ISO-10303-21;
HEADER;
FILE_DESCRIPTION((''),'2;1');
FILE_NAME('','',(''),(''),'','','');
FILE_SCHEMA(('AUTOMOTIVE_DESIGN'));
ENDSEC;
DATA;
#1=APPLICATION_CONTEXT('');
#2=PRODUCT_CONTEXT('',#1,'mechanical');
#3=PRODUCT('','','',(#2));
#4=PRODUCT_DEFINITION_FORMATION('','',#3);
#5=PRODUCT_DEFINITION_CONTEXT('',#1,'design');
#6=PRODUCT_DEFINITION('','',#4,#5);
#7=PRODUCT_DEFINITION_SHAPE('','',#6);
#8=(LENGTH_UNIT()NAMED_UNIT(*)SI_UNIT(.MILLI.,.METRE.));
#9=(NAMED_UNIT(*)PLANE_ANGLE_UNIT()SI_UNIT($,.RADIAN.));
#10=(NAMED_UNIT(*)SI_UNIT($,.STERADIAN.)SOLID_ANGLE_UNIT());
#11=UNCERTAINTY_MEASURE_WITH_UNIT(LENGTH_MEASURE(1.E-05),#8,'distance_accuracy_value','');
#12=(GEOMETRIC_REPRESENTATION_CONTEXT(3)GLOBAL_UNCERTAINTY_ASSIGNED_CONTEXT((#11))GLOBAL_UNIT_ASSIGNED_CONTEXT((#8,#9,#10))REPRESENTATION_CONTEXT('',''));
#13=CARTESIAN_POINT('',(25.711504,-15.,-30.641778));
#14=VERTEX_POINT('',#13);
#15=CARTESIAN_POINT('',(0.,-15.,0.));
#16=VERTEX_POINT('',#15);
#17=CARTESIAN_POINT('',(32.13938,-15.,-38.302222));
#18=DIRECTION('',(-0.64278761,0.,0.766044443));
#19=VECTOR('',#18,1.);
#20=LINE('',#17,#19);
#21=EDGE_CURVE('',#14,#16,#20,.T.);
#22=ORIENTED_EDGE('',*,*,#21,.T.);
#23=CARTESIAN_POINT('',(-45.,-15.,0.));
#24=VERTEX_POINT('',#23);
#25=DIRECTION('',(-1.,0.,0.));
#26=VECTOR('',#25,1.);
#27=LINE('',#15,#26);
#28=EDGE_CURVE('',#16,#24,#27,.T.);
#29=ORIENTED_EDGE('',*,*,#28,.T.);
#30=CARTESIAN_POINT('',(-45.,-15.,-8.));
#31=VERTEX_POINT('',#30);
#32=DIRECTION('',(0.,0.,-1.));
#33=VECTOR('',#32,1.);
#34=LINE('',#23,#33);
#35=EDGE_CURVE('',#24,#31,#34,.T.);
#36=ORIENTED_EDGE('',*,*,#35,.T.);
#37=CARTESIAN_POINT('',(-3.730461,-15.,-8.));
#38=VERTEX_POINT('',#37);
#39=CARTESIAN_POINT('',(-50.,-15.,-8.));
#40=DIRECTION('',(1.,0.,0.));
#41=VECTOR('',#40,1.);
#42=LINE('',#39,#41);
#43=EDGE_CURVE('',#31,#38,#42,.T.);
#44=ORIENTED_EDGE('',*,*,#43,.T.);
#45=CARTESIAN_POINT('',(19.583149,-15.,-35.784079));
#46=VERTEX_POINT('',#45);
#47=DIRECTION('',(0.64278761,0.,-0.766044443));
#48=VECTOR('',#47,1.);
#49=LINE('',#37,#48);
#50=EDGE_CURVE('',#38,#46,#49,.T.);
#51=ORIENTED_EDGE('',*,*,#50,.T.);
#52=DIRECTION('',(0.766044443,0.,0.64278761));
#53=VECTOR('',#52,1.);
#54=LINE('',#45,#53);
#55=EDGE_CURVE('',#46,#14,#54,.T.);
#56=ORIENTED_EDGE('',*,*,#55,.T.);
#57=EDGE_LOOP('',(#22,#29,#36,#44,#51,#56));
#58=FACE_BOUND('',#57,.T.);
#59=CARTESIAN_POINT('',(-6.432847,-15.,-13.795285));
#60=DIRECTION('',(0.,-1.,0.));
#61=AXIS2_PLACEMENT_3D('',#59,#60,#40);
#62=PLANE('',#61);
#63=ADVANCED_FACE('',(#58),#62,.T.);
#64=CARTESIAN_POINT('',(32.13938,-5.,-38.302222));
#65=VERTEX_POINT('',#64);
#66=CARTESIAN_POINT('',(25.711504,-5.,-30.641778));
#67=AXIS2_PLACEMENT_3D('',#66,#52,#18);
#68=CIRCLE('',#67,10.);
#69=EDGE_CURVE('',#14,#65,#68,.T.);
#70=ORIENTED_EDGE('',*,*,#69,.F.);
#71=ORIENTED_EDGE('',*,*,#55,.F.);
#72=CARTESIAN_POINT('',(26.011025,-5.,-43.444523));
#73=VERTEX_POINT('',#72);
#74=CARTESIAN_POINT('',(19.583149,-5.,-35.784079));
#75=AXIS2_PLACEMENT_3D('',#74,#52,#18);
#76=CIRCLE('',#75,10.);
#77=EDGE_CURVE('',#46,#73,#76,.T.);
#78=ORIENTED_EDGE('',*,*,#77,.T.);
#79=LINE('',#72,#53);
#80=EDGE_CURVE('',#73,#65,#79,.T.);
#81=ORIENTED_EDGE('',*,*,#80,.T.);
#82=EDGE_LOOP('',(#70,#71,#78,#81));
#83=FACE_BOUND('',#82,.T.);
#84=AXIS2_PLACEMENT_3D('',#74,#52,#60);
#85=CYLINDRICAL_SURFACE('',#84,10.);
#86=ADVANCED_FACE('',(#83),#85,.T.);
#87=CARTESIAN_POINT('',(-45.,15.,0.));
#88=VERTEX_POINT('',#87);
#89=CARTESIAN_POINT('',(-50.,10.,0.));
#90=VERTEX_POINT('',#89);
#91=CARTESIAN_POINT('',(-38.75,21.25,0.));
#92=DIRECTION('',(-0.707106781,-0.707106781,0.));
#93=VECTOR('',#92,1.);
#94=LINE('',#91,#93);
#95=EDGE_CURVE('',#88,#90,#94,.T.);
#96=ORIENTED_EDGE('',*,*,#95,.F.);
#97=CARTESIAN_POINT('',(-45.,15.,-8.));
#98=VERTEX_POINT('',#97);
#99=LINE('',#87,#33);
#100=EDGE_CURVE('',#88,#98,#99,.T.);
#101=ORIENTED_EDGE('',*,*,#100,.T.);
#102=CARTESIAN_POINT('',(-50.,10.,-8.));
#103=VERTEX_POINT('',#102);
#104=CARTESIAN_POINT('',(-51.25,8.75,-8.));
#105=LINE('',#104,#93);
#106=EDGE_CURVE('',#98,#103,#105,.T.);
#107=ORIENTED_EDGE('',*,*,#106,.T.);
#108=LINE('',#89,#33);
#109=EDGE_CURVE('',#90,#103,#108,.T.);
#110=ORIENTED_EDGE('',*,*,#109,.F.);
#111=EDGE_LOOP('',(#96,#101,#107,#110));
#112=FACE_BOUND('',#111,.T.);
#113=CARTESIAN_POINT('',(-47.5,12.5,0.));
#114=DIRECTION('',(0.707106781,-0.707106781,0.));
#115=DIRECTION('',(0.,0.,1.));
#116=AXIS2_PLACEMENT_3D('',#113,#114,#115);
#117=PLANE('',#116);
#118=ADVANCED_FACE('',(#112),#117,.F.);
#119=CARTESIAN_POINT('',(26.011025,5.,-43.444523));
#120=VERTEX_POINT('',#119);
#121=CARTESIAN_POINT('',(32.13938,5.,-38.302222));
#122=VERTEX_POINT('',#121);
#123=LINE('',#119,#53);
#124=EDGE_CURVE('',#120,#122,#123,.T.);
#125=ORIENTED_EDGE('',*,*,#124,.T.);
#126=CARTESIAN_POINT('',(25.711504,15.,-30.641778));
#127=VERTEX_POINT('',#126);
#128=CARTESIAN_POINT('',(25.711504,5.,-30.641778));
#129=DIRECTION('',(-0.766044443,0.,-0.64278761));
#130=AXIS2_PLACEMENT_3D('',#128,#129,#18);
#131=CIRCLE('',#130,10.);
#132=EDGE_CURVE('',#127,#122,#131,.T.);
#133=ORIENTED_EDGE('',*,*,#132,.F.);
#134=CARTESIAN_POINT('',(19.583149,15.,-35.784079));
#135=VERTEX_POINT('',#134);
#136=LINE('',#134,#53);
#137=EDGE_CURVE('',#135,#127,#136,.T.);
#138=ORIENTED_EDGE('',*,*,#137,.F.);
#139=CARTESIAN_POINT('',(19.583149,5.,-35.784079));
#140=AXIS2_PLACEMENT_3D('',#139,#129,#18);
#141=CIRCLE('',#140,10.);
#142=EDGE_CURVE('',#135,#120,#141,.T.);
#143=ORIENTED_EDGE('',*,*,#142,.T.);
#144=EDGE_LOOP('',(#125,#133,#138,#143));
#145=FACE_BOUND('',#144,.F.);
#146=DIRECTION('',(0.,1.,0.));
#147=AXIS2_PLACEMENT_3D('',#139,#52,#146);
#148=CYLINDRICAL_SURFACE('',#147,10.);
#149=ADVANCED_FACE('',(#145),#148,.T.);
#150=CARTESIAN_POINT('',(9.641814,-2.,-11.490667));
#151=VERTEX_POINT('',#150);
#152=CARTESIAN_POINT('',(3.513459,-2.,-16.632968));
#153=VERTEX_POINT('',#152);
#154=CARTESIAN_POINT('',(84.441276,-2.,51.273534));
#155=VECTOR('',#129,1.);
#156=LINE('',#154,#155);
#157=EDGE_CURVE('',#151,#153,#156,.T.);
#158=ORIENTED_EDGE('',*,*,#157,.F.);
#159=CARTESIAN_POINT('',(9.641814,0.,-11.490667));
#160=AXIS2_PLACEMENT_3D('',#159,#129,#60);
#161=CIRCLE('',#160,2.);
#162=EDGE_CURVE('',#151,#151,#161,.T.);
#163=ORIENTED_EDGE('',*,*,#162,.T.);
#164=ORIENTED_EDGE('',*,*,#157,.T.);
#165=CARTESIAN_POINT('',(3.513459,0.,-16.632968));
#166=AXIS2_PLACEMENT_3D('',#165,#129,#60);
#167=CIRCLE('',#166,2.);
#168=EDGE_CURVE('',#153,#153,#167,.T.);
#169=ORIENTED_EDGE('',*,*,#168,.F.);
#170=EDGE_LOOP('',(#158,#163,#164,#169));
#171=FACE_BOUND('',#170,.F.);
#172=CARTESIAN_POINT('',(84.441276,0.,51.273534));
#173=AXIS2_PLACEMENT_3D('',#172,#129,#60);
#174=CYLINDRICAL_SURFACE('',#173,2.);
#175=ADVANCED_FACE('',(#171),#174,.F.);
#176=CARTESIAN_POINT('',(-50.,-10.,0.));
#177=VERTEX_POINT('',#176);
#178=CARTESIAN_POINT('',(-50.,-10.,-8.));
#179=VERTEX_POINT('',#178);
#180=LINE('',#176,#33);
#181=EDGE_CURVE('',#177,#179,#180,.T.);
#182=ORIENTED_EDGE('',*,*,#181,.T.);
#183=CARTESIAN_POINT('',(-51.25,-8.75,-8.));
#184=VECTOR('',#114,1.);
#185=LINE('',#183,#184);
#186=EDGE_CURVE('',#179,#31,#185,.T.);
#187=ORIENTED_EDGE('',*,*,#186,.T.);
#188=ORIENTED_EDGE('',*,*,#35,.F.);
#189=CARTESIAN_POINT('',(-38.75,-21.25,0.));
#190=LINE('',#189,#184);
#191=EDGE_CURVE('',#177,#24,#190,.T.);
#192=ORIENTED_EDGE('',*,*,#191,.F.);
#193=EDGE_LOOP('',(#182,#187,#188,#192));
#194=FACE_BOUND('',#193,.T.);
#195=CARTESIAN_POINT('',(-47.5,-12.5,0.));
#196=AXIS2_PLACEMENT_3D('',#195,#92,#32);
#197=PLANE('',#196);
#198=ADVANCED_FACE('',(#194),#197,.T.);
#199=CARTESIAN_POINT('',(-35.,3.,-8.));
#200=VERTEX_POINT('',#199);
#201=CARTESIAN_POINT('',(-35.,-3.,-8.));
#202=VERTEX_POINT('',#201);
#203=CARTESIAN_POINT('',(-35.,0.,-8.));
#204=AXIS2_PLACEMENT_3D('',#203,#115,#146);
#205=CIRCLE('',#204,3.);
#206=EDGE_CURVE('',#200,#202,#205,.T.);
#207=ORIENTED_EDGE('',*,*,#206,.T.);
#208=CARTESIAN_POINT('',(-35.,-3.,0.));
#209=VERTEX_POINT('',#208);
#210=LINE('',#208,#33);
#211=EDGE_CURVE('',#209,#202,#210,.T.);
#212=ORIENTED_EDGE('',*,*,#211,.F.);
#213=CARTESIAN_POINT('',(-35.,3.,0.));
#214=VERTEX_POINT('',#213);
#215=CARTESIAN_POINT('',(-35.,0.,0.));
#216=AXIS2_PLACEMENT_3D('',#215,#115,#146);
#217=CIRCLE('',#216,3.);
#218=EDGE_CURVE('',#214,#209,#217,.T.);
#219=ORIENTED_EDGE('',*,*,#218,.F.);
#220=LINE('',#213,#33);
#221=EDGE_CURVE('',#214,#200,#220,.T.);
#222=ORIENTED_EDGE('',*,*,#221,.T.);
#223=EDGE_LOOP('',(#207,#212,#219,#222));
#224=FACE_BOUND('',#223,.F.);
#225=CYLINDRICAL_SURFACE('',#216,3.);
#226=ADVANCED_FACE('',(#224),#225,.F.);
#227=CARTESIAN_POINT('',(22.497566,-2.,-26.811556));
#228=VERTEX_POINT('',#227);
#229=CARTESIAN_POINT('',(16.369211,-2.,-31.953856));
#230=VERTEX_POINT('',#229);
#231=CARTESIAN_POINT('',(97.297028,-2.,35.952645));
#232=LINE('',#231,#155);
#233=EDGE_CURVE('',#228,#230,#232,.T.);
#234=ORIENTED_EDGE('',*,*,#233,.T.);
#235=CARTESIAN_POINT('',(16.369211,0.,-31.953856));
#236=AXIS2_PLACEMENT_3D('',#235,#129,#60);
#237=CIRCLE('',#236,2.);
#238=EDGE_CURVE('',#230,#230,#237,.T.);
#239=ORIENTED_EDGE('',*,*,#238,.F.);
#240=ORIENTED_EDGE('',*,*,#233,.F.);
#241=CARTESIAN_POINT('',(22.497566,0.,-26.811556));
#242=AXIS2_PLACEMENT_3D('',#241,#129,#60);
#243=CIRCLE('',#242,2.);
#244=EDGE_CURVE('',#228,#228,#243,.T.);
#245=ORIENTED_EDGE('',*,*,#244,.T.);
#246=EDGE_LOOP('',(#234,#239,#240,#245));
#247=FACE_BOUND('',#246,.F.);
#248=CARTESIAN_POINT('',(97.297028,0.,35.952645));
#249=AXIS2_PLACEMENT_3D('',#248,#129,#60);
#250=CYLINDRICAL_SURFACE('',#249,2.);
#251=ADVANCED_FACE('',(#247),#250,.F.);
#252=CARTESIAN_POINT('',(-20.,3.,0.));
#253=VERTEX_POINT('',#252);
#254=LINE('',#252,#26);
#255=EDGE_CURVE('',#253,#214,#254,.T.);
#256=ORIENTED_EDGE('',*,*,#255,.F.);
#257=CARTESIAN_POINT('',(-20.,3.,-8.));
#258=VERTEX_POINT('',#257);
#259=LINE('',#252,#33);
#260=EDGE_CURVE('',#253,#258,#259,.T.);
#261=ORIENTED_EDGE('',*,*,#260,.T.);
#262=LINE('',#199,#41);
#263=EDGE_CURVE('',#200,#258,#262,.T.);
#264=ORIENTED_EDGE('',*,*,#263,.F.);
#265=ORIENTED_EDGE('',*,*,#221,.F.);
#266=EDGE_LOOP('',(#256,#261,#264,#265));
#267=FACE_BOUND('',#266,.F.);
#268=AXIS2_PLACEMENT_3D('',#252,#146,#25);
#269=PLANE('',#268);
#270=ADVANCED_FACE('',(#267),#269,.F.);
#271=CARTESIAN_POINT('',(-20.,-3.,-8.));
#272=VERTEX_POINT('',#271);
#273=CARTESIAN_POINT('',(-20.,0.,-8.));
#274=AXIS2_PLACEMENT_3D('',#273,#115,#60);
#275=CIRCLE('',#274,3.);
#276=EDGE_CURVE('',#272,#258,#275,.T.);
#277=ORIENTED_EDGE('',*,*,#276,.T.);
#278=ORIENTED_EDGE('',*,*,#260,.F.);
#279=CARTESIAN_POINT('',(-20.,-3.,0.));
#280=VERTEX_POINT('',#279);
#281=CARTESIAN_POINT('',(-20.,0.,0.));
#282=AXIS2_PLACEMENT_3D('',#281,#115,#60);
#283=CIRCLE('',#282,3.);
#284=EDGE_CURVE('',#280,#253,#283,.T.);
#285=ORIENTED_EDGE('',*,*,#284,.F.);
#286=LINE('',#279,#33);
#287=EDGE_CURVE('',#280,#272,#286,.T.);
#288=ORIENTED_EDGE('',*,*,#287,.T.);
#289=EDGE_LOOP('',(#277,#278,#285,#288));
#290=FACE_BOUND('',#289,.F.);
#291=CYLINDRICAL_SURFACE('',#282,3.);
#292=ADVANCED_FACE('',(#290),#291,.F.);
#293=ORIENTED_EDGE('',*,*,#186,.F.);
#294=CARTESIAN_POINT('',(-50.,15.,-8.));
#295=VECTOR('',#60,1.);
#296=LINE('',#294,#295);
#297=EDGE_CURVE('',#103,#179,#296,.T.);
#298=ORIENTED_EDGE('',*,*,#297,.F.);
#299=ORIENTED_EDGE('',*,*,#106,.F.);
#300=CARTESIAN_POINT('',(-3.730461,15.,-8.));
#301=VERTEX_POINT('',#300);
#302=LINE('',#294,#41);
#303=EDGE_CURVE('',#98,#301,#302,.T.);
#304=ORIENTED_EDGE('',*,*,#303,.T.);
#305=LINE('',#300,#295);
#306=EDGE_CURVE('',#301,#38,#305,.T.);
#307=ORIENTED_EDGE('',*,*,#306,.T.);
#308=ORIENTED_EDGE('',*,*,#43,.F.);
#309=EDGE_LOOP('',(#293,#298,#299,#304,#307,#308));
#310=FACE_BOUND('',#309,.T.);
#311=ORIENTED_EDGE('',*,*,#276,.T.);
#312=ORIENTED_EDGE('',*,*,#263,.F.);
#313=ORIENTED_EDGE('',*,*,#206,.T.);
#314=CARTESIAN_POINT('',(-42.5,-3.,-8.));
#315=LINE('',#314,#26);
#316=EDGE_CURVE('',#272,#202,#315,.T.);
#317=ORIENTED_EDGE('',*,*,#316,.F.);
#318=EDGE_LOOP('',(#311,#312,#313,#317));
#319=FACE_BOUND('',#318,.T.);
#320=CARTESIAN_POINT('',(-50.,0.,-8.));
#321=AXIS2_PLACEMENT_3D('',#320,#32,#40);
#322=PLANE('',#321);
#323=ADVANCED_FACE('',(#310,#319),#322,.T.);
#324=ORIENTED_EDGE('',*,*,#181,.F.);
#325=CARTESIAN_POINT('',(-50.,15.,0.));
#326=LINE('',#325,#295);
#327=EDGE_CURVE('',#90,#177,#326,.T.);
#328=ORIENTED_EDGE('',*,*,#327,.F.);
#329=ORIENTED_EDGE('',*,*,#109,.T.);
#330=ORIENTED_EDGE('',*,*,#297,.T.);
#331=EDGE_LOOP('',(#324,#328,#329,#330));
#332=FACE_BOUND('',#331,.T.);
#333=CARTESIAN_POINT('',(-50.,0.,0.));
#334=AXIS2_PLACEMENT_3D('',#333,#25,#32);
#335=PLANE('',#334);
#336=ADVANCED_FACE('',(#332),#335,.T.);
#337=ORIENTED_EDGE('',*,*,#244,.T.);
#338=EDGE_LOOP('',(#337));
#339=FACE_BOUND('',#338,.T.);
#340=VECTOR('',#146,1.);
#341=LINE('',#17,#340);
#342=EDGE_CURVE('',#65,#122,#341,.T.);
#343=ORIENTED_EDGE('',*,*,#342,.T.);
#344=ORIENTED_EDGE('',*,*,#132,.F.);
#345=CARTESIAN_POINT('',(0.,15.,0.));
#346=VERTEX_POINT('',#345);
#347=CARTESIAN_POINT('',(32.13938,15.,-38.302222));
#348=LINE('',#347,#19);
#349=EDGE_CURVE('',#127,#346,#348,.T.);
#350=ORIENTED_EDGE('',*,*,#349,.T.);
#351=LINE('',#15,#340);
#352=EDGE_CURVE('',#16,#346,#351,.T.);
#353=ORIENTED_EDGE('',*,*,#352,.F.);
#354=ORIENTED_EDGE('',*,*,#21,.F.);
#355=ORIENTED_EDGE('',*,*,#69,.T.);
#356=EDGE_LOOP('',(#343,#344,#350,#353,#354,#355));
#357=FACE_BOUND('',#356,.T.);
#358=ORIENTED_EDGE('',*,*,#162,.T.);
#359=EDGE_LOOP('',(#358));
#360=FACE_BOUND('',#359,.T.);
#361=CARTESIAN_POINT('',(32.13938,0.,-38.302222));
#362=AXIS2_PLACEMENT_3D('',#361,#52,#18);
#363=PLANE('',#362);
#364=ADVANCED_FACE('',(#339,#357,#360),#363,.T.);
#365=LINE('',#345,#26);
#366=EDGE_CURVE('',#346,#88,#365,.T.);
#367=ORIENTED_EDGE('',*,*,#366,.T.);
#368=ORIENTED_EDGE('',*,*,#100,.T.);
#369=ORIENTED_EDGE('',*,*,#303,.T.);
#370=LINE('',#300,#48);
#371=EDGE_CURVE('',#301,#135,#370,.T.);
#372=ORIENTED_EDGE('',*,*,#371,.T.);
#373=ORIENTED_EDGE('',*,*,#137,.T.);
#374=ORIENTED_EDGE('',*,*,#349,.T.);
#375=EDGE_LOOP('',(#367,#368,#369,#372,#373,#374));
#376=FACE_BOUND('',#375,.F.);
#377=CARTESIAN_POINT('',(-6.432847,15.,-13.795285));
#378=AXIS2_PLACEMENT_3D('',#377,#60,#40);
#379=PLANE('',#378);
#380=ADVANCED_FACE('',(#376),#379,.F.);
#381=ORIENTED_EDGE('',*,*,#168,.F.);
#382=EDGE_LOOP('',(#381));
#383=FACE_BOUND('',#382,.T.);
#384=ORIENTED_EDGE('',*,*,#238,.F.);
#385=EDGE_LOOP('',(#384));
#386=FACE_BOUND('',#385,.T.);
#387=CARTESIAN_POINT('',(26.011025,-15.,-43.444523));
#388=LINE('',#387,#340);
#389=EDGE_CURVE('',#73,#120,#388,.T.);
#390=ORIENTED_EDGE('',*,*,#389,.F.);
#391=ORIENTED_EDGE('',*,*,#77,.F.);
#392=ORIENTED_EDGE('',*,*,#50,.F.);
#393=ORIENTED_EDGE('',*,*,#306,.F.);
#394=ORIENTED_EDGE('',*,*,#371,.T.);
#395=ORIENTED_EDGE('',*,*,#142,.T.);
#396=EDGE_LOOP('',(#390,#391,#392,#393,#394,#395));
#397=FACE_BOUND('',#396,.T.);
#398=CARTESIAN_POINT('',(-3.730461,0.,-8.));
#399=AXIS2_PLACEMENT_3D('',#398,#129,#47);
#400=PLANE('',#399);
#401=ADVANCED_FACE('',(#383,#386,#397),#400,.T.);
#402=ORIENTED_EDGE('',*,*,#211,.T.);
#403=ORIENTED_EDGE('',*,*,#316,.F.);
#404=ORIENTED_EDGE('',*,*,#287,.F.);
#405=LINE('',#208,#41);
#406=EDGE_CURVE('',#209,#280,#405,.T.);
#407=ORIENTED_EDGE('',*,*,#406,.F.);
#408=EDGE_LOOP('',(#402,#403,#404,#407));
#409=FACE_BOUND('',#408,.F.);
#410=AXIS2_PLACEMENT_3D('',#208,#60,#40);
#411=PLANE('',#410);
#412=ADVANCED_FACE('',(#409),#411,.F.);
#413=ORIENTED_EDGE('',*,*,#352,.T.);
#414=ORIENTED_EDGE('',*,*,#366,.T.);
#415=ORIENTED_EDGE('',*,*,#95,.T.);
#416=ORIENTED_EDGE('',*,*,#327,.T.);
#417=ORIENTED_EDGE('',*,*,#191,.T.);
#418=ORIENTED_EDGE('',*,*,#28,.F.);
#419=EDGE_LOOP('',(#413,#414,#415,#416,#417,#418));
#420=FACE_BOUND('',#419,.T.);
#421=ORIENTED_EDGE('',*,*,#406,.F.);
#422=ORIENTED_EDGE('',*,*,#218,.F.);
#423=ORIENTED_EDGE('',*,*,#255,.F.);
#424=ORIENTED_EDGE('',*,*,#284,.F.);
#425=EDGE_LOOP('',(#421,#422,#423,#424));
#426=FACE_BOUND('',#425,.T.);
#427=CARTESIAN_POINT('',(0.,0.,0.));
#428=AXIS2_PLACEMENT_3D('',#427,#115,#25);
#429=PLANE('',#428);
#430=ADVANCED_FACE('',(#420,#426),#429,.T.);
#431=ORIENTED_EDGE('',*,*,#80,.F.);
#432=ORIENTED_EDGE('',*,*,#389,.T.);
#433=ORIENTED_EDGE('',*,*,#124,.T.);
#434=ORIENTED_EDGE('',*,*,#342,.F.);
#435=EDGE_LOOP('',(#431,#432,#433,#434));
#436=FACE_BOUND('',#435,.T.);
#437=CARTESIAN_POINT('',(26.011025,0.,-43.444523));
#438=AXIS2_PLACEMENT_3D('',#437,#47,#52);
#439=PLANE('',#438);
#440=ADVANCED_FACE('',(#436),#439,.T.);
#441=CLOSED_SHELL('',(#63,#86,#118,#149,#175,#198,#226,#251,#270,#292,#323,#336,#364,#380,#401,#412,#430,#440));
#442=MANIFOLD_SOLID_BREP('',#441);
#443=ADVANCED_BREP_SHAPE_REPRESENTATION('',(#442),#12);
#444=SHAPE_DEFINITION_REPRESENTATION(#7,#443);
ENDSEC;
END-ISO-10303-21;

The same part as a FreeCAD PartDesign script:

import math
import FreeCAD as App
import Part
import Sketcher
from FreeCAD import Vector
Q = App.Units.Quantity


def edges_at(feature, points):
    """Names of the edges that pass closest to the given points."""
    edges = feature.Shape.Edges
    near = lambda p: min(range(len(edges)), key=lambda i: edges[i].distToShape(Part.Vertex(*p))[0])
    return sorted({f"Edge{near(p) + 1}" for p in points})

doc = App.newDocument("Part")
params = doc.addObject("Spreadsheet::Sheet", "Params")
for row, (alias, value) in enumerate([
    ("sketch1_width", "50 mm"),
    ("sketch1_height", "8 mm"),
    ("sketch1_length", "8 mm"),
    ("sketch1_length2", "50 mm"),
    ("pad1_length", "30 mm"),
    ("sketch2_radius", "3 mm"),
    ("sketch2_width", "15 mm"),
    ("sketch3_diameter", "4 mm"),
    ("hole_diameter", "4 mm"),
    ("fillet_radius", "10 mm"),
    ("chamfer_size", "5 mm"),
], start=1):
    params.set(f"A{row}", alias)
    params.set(f"B{row}", "=" + value)
    params.setAlias(f"B{row}", alias)

body = doc.addObject("PartDesign::Body", "Body")

# Sketch on XZ plane
sketch1 = body.newObject("Sketcher::SketchObject", "Sketch")
sketch1.AttachmentSupport = (doc.getObject("XZ_Plane"), [""])
sketch1.MapMode = "FlatFace"
sketch1.addGeometry(Part.LineSegment(Vector(0, 0, 0), Vector(-50, 0, 0)), False)
sketch1.addGeometry(Part.LineSegment(Vector(-50, 0, 0), Vector(-50, -8, 0)), False)
sketch1.addGeometry(Part.LineSegment(Vector(-50, -8, 0), Vector(-4, -8, 0)), False)
sketch1.addGeometry(Part.LineSegment(Vector(-4, -8, 0), Vector(26, -43, 0)), False)
sketch1.addGeometry(Part.LineSegment(Vector(26, -43, 0), Vector(32, -38, 0)), False)
sketch1.addGeometry(Part.LineSegment(Vector(32, -38, 0), Vector(0, 0, 0)), False)
sketch1.addConstraint(Sketcher.Constraint("Coincident", 0, 2, 1, 1))
sketch1.addConstraint(Sketcher.Constraint("Coincident", 1, 2, 2, 1))
sketch1.addConstraint(Sketcher.Constraint("Coincident", 2, 2, 3, 1))
sketch1.addConstraint(Sketcher.Constraint("Coincident", 3, 2, 4, 1))
sketch1.addConstraint(Sketcher.Constraint("Coincident", 4, 2, 5, 1))
sketch1.addConstraint(Sketcher.Constraint("Coincident", 5, 2, 0, 1))
sketch1.addConstraint(Sketcher.Constraint("Horizontal", 0))
sketch1.addConstraint(Sketcher.Constraint("Vertical", 1))
sketch1.addConstraint(Sketcher.Constraint("Horizontal", 2))
sketch1.addConstraint(Sketcher.Constraint("Coincident", 5, 2, -1, 1))
sketch1.addConstraint(Sketcher.Constraint("Perpendicular", 3, 4))
sketch1.addConstraint(Sketcher.Constraint("Perpendicular", 4, 5))
sketch1.addConstraint(Sketcher.Constraint("DistanceX", 0, 2, 0, 1, 50.0))
sketch1.addConstraint(Sketcher.Constraint("DistanceY", 1, 2, 1, 1, 8.0))
sketch1.addConstraint(Sketcher.Constraint("Angle", 3, Q("-50 deg")))
sketch1.addConstraint(Sketcher.Constraint("Distance", 4, 8.0))
sketch1.addConstraint(Sketcher.Constraint("Distance", 5, 50.0))
sketch1.setExpression("Constraints[12]", "Params.sketch1_width")
sketch1.setExpression("Constraints[13]", "Params.sketch1_height")
sketch1.setExpression("Constraints[15]", "Params.sketch1_length")
sketch1.setExpression("Constraints[16]", "Params.sketch1_length2")
pad1 = body.newObject("PartDesign::Pad", "Pad")
pad1.Profile = sketch1
pad1.setExpression("Length", "Params.pad1_length")
pad1.Midplane = True

# Sketch on XY plane
sketch2 = body.newObject("Sketcher::SketchObject", "Sketch001")
sketch2.AttachmentSupport = (doc.getObject("XY_Plane"), [""])
sketch2.MapMode = "FlatFace"
sketch2.addGeometry(Part.ArcOfCircle(Part.Circle(Vector(-35, 0, 0), Vector(0, 0, 1), 3), math.radians(90), math.radians(270)), False)
sketch2.addGeometry(Part.LineSegment(Vector(-35, -3, 0), Vector(-20, -3, 0)), False)
sketch2.addGeometry(Part.ArcOfCircle(Part.Circle(Vector(-20, 0, 0), Vector(0, 0, 1), 3), math.radians(-90), math.radians(90)), False)
sketch2.addGeometry(Part.LineSegment(Vector(-20, 3, 0), Vector(-35, 3, 0)), False)
sketch2.addConstraint(Sketcher.Constraint("Tangent", 0, 2, 1, 1))
sketch2.addConstraint(Sketcher.Constraint("Tangent", 1, 2, 2, 1))
sketch2.addConstraint(Sketcher.Constraint("Tangent", 2, 2, 3, 1))
sketch2.addConstraint(Sketcher.Constraint("Tangent", 3, 2, 0, 1))
sketch2.addConstraint(Sketcher.Constraint("Horizontal", 1))
sketch2.addConstraint(Sketcher.Constraint("Horizontal", 3))
sketch2.addConstraint(Sketcher.Constraint("PointOnObject", 0, 3, -1))
sketch2.addConstraint(Sketcher.Constraint("Radius", 0, 3.0))
sketch2.addConstraint(Sketcher.Constraint("DistanceX", 1, 1, 1, 2, 15.0))
sketch2.addConstraint(Sketcher.Constraint("DistanceX", 0, 3, -1, 1, 35.0))
sketch2.setExpression("Constraints[7]", "Params.sketch2_radius")
sketch2.setExpression("Constraints[8]", "Params.sketch2_width")
pocket1 = body.newObject("PartDesign::Pocket", "Pocket")
pocket1.Profile = sketch2
pocket1.Type = "ThroughAll"

# Sketch on an angled plane
sketch3 = body.newObject("Sketcher::SketchObject", "Sketch002")
sketch3.Placement = App.Placement(Vector(0, 0, 0), App.Rotation(Vector(0, 1, 0), Vector(-0.64278761, 0, 0.766044443), Vector(0.766044443, 0, 0.64278761), "ZXY"))
sketch3.addGeometry(Part.Circle(Vector(0, -15, 0), Vector(0, 0, 1), 2), False)
sketch3.addGeometry(Part.Circle(Vector(0, -35, 0), Vector(0, 0, 1), 2), False)
sketch3.addConstraint(Sketcher.Constraint("Equal", 0, 1))
sketch3.addConstraint(Sketcher.Constraint("PointOnObject", 0, 3, -2))
sketch3.addConstraint(Sketcher.Constraint("PointOnObject", 1, 3, -2))
sketch3.addConstraint(Sketcher.Constraint("Diameter", 0, 4.0))
sketch3.addConstraint(Sketcher.Constraint("DistanceY", 0, 3, -1, 1, 15.0))
sketch3.addConstraint(Sketcher.Constraint("DistanceY", 1, 3, -1, 1, 35.0))
sketch3.setExpression("Constraints[3]", "Params.sketch3_diameter")
doc.recompute()
hole = body.newObject("PartDesign::Hole", "Hole")
hole.Profile = sketch3
hole.ThreadType = "None"
hole.setExpression("Diameter", "Params.hole_diameter")
hole.DepthType = "ThroughAll"
doc.recompute()

fillet = body.newObject("PartDesign::Fillet", "Fillet")
fillet.Base = (hole, edges_at(hole, [(29.075, 15, -40.873), (29.075, -15, -40.873)]))
fillet.setExpression("Radius", "Params.fillet_radius")
doc.recompute()

chamfer = body.newObject("PartDesign::Chamfer", "Chamfer")
chamfer.Base = (fillet, edges_at(fillet, [(-50, -15, -4), (-50, 15, -4)]))
chamfer.setExpression("Size", "Params.chamfer_size")

doc.recompute()
